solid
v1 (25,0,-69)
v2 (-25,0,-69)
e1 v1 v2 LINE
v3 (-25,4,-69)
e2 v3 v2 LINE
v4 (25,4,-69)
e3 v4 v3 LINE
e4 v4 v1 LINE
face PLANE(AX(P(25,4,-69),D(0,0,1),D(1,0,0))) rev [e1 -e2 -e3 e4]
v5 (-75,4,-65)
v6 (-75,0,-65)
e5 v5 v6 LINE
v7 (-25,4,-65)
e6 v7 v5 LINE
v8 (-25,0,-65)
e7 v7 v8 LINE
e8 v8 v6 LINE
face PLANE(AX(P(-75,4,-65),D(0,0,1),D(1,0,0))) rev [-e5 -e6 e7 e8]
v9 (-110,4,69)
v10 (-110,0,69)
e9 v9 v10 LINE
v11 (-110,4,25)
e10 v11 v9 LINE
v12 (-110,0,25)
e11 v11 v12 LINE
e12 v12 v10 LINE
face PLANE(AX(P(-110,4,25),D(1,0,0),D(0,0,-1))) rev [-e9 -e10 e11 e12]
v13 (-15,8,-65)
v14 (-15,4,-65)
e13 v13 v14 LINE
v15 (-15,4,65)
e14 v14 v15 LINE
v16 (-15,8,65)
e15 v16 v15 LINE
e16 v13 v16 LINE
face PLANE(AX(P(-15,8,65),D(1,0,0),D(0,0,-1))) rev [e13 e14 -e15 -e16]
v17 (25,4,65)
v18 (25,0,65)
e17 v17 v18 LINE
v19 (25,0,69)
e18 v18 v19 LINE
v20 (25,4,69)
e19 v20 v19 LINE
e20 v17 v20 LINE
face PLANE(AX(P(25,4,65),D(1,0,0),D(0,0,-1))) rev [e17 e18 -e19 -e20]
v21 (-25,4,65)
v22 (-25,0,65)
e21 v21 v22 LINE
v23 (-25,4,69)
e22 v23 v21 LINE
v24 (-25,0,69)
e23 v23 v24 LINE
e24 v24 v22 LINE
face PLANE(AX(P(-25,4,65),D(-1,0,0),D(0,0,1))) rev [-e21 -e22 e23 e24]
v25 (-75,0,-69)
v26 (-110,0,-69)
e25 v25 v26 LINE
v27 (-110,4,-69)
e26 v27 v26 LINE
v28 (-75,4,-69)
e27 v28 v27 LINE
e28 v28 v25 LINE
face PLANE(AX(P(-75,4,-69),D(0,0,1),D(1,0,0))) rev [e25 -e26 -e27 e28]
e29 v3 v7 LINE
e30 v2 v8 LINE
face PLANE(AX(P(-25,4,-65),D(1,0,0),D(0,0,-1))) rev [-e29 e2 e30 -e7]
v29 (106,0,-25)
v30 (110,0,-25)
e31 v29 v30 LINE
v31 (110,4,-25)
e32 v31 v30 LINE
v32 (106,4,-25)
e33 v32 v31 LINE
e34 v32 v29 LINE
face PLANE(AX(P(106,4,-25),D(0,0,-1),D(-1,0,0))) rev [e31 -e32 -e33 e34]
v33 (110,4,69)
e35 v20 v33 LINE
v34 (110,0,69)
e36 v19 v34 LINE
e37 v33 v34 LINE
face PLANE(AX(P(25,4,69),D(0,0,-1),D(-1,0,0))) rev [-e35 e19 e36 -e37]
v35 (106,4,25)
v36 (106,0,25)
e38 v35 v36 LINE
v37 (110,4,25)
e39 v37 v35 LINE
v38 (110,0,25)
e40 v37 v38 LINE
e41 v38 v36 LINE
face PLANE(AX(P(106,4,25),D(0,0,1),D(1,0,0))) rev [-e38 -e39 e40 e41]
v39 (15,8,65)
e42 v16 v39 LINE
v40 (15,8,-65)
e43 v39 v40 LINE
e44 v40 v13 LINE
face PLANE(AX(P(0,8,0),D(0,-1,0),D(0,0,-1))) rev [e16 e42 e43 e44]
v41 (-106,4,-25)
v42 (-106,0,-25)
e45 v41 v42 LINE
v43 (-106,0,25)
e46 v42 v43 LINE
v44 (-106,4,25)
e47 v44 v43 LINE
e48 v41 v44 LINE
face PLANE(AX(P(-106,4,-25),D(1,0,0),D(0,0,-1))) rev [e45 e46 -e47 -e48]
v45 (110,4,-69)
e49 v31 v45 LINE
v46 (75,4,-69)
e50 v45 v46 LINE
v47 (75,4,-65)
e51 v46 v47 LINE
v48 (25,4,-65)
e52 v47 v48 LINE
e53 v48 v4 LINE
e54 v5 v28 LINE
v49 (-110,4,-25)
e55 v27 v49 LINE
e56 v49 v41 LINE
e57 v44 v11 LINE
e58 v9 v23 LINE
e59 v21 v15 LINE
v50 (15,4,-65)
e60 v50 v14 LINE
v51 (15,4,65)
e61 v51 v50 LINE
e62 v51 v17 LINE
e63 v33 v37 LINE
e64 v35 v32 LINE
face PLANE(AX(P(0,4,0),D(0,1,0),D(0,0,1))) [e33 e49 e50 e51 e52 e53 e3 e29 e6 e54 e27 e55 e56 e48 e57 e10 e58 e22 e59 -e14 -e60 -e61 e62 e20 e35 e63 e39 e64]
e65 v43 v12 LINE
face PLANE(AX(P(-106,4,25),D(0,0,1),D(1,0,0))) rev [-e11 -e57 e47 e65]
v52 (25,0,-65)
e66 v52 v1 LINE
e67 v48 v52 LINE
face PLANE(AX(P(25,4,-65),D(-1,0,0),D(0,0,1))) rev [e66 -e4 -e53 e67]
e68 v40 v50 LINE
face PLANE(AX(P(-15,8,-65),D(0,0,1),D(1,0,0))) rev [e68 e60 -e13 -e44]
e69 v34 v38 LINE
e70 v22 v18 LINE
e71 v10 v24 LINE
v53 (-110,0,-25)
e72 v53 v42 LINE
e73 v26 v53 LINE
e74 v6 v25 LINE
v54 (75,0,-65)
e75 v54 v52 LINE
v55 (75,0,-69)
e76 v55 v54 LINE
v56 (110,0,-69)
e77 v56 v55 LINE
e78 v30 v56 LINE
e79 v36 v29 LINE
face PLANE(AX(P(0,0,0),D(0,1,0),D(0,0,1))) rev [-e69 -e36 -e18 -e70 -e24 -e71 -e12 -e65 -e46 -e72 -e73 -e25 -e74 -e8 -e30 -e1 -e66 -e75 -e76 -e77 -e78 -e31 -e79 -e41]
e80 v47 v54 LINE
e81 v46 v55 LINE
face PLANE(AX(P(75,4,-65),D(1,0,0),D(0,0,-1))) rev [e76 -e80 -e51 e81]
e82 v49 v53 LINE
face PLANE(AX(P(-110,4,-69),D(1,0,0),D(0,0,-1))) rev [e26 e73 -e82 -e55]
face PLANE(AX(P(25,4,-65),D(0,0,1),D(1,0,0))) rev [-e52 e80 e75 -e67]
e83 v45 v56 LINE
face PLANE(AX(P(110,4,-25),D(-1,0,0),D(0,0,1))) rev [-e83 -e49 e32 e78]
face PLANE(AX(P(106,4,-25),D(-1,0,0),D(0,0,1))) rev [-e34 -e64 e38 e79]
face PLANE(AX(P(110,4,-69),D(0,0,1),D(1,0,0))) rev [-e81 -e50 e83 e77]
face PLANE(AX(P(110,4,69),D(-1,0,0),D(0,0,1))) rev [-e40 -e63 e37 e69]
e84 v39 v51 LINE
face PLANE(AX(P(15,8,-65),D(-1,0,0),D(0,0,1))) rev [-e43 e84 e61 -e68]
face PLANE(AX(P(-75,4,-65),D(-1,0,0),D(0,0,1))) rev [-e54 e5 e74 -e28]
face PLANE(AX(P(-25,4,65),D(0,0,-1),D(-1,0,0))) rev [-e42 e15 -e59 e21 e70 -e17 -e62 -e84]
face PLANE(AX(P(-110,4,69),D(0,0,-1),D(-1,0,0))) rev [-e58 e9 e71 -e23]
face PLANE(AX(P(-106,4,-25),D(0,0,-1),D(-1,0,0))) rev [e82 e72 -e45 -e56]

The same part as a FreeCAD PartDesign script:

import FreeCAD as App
import Part
import Sketcher
from FreeCAD import Vector
Q = App.Units.Quantity

doc = App.newDocument("Part")
body = doc.addObject("PartDesign::Body", "Body")

# Sketch on XZ plane
sketch1 = body.newObject("Sketcher::SketchObject", "Sketch")
sketch1.AttachmentSupport = (doc.getObject("XZ_Plane"), [""])
sketch1.MapMode = "FlatFace"
sketch1.addGeometry(Part.LineSegment(Vector(-110, -69, 0), Vector(-110, -25, 0)), False)
sketch1.addGeometry(Part.LineSegment(Vector(-110, -25, 0), Vector(-106, -25, 0)), False)
sketch1.addGeometry(Part.LineSegment(Vector(-106, -25, 0), Vector(-106, 25, 0)), False)
sketch1.addGeometry(Part.LineSegment(Vector(-106, 25, 0), Vector(-110, 25, 0)), False)
sketch1.addGeometry(Part.LineSegment(Vector(-110, 25, 0), Vector(-110, 69, 0)), False)
sketch1.addGeometry(Part.LineSegment(Vector(-110, 69, 0), Vector(-25, 69, 0)), False)
sketch1.addGeometry(Part.LineSegment(Vector(-25, 69, 0), Vector(-25, 65, 0)), False)
sketch1.addGeometry(Part.LineSegment(Vector(-25, 65, 0), Vector(25, 65, 0)), False)
sketch1.addGeometry(Part.LineSegment(Vector(25, 65, 0), Vector(25, 69, 0)), False)
sketch1.addGeometry(Part.LineSegment(Vector(25, 69, 0), Vector(110, 69, 0)), False)
sketch1.addGeometry(Part.LineSegment(Vector(110, 69, 0), Vector(110, 25, 0)), False)
sketch1.addGeometry(Part.LineSegment(Vector(110, 25, 0), Vector(106, 25, 0)), False)
sketch1.addGeometry(Part.LineSegment(Vector(106, 25, 0), Vector(106, -25, 0)), False)
sketch1.addGeometry(Part.LineSegment(Vector(106, -25, 0), Vector(110, -25, 0)), False)
sketch1.addGeometry(Part.LineSegment(Vector(110, -25, 0), Vector(110, -69, 0)), False)
sketch1.addGeometry(Part.LineSegment(Vector(110, -69, 0), Vector(75, -69, 0)), False)
sketch1.addGeometry(Part.LineSegment(Vector(75, -69, 0), Vector(75, -65, 0)), False)
sketch1.addGeometry(Part.LineSegment(Vector(75, -65, 0), Vector(25, -65, 0)), False)
sketch1.addGeometry(Part.LineSegment(Vector(25, -65, 0), Vector(25, -69, 0)), False)
sketch1.addGeometry(Part.LineSegment(Vector(25, -69, 0), Vector(-25, -69, 0)), False)
sketch1.addGeometry(Part.LineSegment(Vector(-25, -69, 0), Vector(-25, -65, 0)), False)
sketch1.addGeometry(Part.LineSegment(Vector(-25, -65, 0), Vector(-75, -65, 0)), False)
sketch1.addGeometry(Part.LineSegment(Vector(-75, -65, 0), Vector(-75, -69, 0)), False)
sketch1.addGeometry(Part.LineSegment(Vector(-75, -69, 0), Vector(-110, -69, 0)), False)
sketch1.addConstraint(Sketcher.Constraint("Coincident", 0, 2, 1, 1))
sketch1.addConstraint(Sketcher.Constraint("Coincident", 1, 2, 2, 1))
sketch1.addConstraint(Sketcher.Constraint("Coincident", 2, 2, 3, 1))
sketch1.addConstraint(Sketcher.Constraint("Coincident", 3, 2, 4, 1))
sketch1.addConstraint(Sketcher.Constraint("Coincident", 4, 2, 5, 1))
sketch1.addConstraint(Sketcher.Constraint("Coincident", 5, 2, 6, 1))
sketch1.addConstraint(Sketcher.Constraint("Coincident", 6, 2, 7, 1))
sketch1.addConstraint(Sketcher.Constraint("Coincident", 7, 2, 8, 1))
sketch1.addConstraint(Sketcher.Constraint("Coincident", 8, 2, 9, 1))
sketch1.addConstraint(Sketcher.Constraint("Coincident", 9, 2, 10, 1))
sketch1.addConstraint(Sketcher.Constraint("Coincident", 10, 2, 11, 1))
sketch1.addConstraint(Sketcher.Constraint("Coincident", 11, 2, 12, 1))
sketch1.addConstraint(Sketcher.Constraint("Coincident", 12, 2, 13, 1))
sketch1.addConstraint(Sketcher.Constraint("Coincident", 13, 2, 14, 1))
sketch1.addConstraint(Sketcher.Constraint("Coincident", 14, 2, 15, 1))
sketch1.addConstraint(Sketcher.Constraint("Coincident", 15, 2, 16, 1))
sketch1.addConstraint(Sketcher.Constraint("Coincident", 16, 2, 17, 1))
sketch1.addConstraint(Sketcher.Constraint("Coincident", 17, 2, 18, 1))
sketch1.addConstraint(Sketcher.Constraint("Coincident", 18, 2, 19, 1))
sketch1.addConstraint(Sketcher.Constraint("Coincident", 19, 2, 20, 1))
sketch1.addConstraint(Sketcher.Constraint("Coincident", 20, 2, 21, 1))
sketch1.addConstraint(Sketcher.Constraint("Coincident", 21, 2, 22, 1))
sketch1.addConstraint(Sketcher.Constraint("Coincident", 22, 2, 23, 1))
sketch1.addConstraint(Sketcher.Constraint("Coincident", 23, 2, 0, 1))
sketch1.addConstraint(Sketcher.Constraint("Vertical", 0))
sketch1.addConstraint(Sketcher.Constraint("Horizontal", 1))
sketch1.addConstraint(Sketcher.Constraint("Vertical", 2))
sketch1.addConstraint(Sketcher.Constraint("Horizontal", 3))
sketch1.addConstraint(Sketcher.Constraint("Vertical", 4))
sketch1.addConstraint(Sketcher.Constraint("Horizontal", 5))
sketch1.addConstraint(Sketcher.Constraint("Vertical", 6))
sketch1.addConstraint(Sketcher.Constraint("Horizontal", 7))
sketch1.addConstraint(Sketcher.Constraint("Vertical", 8))
sketch1.addConstraint(Sketcher.Constraint("Horizontal", 9))
sketch1.addConstraint(Sketcher.Constraint("Vertical", 10))
sketch1.addConstraint(Sketcher.Constraint("Horizontal", 11))
sketch1.addConstraint(Sketcher.Constraint("Vertical", 12))
sketch1.addConstraint(Sketcher.Constraint("Horizontal", 13))
sketch1.addConstraint(Sketcher.Constraint("Vertical", 14))
sketch1.addConstraint(Sketcher.Constraint("Horizontal", 15))
sketch1.addConstraint(Sketcher.Constraint("Vertical", 16))
sketch1.addConstraint(Sketcher.Constraint("Horizontal", 17))
sketch1.addConstraint(Sketcher.Constraint("Vertical", 18))
sketch1.addConstraint(Sketcher.Constraint("Horizontal", 19))
sketch1.addConstraint(Sketcher.Constraint("Vertical", 20))
sketch1.addConstraint(Sketcher.Constraint("Horizontal", 21))
sketch1.addConstraint(Sketcher.Constraint("Vertical", 22))
sketch1.addConstraint(Sketcher.Constraint("Horizontal", 23))
sketch1.addConstraint(Sketcher.Constraint("Symmetric", 0, 2, 10, 2, -1, 1))
sketch1.addConstraint(Sketcher.Constraint("Symmetric", 2, 2, 12, 2, -1, 1))
sketch1.addConstraint(Sketcher.Constraint("Symmetric", 4, 2, 14, 2, -1, 1))
sketch1.addConstraint(Sketcher.Constraint("Symmetric", 6, 2, 17, 2, -1, 1))
sketch1.addConstraint(Sketcher.Constraint("Symmetric", 8, 2, 19, 2, -1, 1))
sketch1.addConstraint(Sketcher.Constraint("Symmetric", 5, 2, 8, 2, -2))
sketch1.addConstraint(Sketcher.Constraint("Symmetric", 3, 2, 10, 2, -2))
sketch1.addConstraint(Sketcher.Constraint("Symmetric", 16, 2, 21, 2, -2))
sketch1.addConstraint(Sketcher.Constraint("Horizontal", 19, 2, 22, 2))
sketch1.addConstraint(Sketcher.Constraint("Equal", 7, 17))
sketch1.addConstraint(Sketcher.Constraint("Equal", 21, 2))
sketch1.addConstraint(Sketcher.Constraint("Equal", 13, 6))
sketch1.addConstraint(Sketcher.Constraint("DistanceX", 1, 1, 1, 2, Q("4 mm")))
sketch1.addConstraint(Sketcher.Constraint("DistanceX", 5, 1, 5, 2, Q("85 mm")))
sketch1.addConstraint(Sketcher.Constraint("DistanceX", 7, 1, 7, 2, Q("50 mm")))
sketch1.addConstraint(Sketcher.Constraint("DistanceY", 0, 1, 0, 2, Q("44 mm")))
pad1 = body.newObject("PartDesign::Pad", "Pad")
pad1.Profile = sketch1
pad1.Length = 4
pad1.Reversed = True

# Sketch on XZ plane
sketch2 = body.newObject("Sketcher::SketchObject", "Sketch001")
sketch2.AttachmentSupport = (doc.getObject("XZ_Plane"), [""])
sketch2.MapMode = "FlatFace"
sketch2.AttachmentOffset = App.Placement(Vector(0, 0, -4), App.Rotation())
sketch2.addGeometry(Part.LineSegment(Vector(-15, -65, 0), Vector(-15, 65, 0)), False)
sketch2.addGeometry(Part.LineSegment(Vector(-15, 65, 0), Vector(15, 65, 0)), False)
sketch2.addGeometry(Part.LineSegment(Vector(15, 65, 0), Vector(15, -65, 0)), False)
sketch2.addGeometry(Part.LineSegment(Vector(15, -65, 0), Vector(-15, -65, 0)), False)
sketch2.addConstraint(Sketcher.Constraint("Coincident", 0, 2, 1, 1))
sketch2.addConstraint(Sketcher.Constraint("Coincident", 1, 2, 2, 1))
sketch2.addConstraint(Sketcher.Constraint("Coincident", 2, 2, 3, 1))
sketch2.addConstraint(Sketcher.Constraint("Coincident", 3, 2, 0, 1))
sketch2.addConstraint(Sketcher.Constraint("Vertical", 0))
sketch2.addConstraint(Sketcher.Constraint("Horizontal", 1))
sketch2.addConstraint(Sketcher.Constraint("Vertical", 2))
sketch2.addConstraint(Sketcher.Constraint("Horizontal", 3))
sketch2.addConstraint(Sketcher.Constraint("Symmetric", 0, 2, 2, 2, -1, 1))
sketch2.addConstraint(Sketcher.Constraint("DistanceX", 1, 1, 1, 2, Q("30 mm")))
sketch2.addConstraint(Sketcher.Constraint("DistanceY", 0, 1, 0, 2, Q("130 mm")))
pad2 = body.newObject("PartDesign::Pad", "Pad001")
pad2.Profile = sketch2
pad2.Length = 4
pad2.Reversed = True

doc.recompute()
